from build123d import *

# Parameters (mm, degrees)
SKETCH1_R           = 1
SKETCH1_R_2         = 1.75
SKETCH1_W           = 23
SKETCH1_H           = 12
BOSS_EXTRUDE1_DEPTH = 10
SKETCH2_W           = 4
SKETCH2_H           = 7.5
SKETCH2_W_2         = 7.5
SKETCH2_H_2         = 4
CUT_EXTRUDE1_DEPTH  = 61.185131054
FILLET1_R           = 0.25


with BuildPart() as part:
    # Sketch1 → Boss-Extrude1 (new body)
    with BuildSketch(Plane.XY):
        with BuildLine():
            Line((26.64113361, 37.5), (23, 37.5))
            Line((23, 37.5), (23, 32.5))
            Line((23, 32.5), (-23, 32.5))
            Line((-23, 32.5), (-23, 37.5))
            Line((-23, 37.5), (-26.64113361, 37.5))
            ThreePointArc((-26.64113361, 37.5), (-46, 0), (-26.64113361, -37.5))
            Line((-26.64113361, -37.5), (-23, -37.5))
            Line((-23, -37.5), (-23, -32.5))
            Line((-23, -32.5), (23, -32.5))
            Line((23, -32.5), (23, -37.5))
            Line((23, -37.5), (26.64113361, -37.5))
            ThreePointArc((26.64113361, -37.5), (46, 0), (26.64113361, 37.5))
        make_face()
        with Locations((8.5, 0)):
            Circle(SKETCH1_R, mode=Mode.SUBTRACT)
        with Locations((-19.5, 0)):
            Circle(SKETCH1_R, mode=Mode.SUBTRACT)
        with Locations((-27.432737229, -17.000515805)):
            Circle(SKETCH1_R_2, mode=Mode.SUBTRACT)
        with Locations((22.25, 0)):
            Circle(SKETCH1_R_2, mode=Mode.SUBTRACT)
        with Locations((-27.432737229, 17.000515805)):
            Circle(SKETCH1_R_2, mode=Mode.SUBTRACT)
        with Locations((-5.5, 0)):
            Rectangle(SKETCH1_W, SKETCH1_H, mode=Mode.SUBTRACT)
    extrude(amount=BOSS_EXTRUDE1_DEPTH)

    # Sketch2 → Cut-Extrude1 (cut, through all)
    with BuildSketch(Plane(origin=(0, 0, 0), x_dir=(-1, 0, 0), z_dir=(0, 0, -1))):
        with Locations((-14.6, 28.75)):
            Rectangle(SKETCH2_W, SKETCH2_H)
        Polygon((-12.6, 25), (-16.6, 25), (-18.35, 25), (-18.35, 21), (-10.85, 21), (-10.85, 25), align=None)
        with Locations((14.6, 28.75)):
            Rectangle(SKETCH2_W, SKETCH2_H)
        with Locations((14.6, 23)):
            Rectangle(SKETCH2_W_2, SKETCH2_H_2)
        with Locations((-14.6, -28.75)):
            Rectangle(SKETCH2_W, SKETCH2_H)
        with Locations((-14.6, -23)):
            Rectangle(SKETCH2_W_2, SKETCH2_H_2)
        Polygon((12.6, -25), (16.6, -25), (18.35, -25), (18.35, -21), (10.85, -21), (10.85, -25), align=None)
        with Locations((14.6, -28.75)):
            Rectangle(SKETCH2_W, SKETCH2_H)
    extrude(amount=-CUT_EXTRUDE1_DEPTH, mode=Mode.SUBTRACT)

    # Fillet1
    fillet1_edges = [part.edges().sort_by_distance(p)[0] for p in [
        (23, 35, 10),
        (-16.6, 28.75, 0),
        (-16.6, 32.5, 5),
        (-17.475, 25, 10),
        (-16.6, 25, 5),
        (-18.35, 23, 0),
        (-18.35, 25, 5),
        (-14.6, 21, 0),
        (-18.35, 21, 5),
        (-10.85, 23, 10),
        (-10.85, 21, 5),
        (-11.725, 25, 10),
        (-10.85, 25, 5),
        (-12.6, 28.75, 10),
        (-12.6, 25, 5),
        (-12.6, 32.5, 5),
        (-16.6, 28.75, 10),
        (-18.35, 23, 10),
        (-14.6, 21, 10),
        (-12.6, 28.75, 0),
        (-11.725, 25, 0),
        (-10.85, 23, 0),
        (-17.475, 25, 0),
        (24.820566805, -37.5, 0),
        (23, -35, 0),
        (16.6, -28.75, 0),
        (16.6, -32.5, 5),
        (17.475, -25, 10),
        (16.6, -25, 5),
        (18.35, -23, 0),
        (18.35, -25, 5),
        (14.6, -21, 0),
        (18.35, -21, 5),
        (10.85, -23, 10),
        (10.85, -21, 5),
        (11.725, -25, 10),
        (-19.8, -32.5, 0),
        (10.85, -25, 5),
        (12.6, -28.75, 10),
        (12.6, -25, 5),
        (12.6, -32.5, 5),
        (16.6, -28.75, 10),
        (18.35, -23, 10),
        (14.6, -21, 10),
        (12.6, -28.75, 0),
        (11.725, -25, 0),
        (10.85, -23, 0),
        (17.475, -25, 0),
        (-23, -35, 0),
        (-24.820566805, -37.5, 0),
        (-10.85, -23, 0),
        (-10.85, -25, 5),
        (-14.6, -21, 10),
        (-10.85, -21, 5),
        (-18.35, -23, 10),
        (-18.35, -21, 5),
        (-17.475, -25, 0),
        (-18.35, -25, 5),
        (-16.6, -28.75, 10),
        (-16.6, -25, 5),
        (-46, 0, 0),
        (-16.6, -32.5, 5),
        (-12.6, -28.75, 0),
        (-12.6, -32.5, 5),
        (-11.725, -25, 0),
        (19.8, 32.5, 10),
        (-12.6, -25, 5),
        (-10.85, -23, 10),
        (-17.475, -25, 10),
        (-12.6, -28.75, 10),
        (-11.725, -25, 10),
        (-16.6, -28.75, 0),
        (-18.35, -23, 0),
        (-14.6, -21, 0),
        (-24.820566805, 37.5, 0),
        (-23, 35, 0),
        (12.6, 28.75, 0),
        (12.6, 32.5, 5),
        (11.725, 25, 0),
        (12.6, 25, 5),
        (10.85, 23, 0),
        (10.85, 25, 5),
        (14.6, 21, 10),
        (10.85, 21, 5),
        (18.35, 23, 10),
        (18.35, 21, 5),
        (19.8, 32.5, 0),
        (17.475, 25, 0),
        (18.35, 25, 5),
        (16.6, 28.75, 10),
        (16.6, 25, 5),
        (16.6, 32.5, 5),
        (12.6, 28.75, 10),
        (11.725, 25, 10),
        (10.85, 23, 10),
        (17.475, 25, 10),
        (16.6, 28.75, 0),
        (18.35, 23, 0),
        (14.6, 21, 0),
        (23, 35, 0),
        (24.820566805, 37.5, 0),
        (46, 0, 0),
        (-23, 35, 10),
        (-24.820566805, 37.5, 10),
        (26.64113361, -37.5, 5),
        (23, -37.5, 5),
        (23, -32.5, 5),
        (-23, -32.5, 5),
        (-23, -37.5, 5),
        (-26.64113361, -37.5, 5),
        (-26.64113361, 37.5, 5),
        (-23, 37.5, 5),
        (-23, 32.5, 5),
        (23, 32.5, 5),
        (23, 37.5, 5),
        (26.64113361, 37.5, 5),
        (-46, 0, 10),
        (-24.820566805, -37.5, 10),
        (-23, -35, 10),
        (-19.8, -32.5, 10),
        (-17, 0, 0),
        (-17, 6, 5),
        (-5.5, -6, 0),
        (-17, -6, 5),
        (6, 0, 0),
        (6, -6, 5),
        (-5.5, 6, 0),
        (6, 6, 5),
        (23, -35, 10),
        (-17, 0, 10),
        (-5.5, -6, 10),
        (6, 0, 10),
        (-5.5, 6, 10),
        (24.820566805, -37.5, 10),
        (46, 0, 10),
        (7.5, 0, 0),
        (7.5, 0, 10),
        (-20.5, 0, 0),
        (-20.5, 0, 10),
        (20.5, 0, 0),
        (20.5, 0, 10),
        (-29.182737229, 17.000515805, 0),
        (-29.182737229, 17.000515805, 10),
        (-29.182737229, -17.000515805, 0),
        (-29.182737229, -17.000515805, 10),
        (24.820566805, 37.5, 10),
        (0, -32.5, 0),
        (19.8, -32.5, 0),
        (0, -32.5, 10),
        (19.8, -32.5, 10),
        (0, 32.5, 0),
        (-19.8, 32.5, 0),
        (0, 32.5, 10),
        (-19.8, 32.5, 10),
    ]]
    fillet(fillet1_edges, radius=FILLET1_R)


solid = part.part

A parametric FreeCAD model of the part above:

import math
import FreeCAD as App
import Part
import Sketcher

V = App.Vector
Q = App.Units.Quantity

doc = App.newDocument("Part")
params = doc.addObject("Spreadsheet::Sheet", "Params")
for row, (alias, value) in enumerate([
    ("sketch1_diameter", "2 mm"),
    ("sketch1_radius", "46 mm"),
    ("sketch1_diameter2", "3.5 mm"),
    ("sketch1_width", "46 mm"),
    ("sketch1_width2", "23 mm"),
    ("pad1_length", "10 mm"),
    ("sketch2_width", "4 mm"),
    ("sketch2_width2", "7.5 mm"),
    ("fillet_radius", "0.25 mm"),
], start=1):
    params.set(f"A{row}", alias)
    params.set(f"B{row}", "=" + value)
    params.setAlias(f"B{row}", alias)

body = doc.addObject("PartDesign::Body", "Body")

# Sketch on XY plane
sketch1 = body.newObject("Sketcher::SketchObject", "Sketch")
sketch1.AttachmentSupport = (doc.getObject("XY_Plane"), [""])
sketch1.MapMode = "FlatFace"
sketch1.addGeometry(Part.LineSegment(V(26.6, 37.5, 0), V(23, 37.5, 0)), False)
sketch1.addGeometry(Part.LineSegment(V(23, 37.5, 0), V(23, 32.5, 0)), False)
sketch1.addGeometry(Part.LineSegment(V(23, 32.5, 0), V(-23, 32.5, 0)), False)
sketch1.addGeometry(Part.LineSegment(V(-23, 32.5, 0), V(-23, 37.5, 0)), False)
sketch1.addGeometry(Part.LineSegment(V(-23, 37.5, 0), V(-26.6, 37.5, 0)), False)
sketch1.addGeometry(Part.ArcOfCircle(Part.Circle(V(0, 0, 0), V(0, 0, 1), 46), math.radians(125), math.radians(235)), False)
sketch1.addGeometry(Part.LineSegment(V(-26.6, -37.5, 0), V(-23, -37.5, 0)), False)
sketch1.addGeometry(Part.LineSegment(V(-23, -37.5, 0), V(-23, -32.5, 0)), False)
sketch1.addGeometry(Part.LineSegment(V(-23, -32.5, 0), V(23, -32.5, 0)), False)
sketch1.addGeometry(Part.LineSegment(V(23, -32.5, 0), V(23, -37.5, 0)), False)
sketch1.addGeometry(Part.LineSegment(V(23, -37.5, 0), V(26.6, -37.5, 0)), False)
sketch1.addGeometry(Part.ArcOfCircle(Part.Circle(V(0, 0, 0), V(0, 0, 1), 46), math.radians(-55), math.radians(55)), False)
sketch1.addGeometry(Part.Circle(V(-27.4, -17, 0), V(0, 0, 1), 1.8), False)
sketch1.addGeometry(Part.Circle(V(-19.5, 0, 0), V(0, 0, 1), 1), False)
sketch1.addGeometry(Part.LineSegment(V(6, -6, 0), V(-17, -6, 0)), False)
sketch1.addGeometry(Part.LineSegment(V(-17, -6, 0), V(-17, 6, 0)), False)
sketch1.addGeometry(Part.LineSegment(V(-17, 6, 0), V(6, 6, 0)), False)
sketch1.addGeometry(Part.LineSegment(V(6, 6, 0), V(6, -6, 0)), False)
sketch1.addGeometry(Part.Circle(V(-27.4, 17, 0), V(0, 0, 1), 1.8), False)
sketch1.addGeometry(Part.Circle(V(8.5, 0, 0), V(0, 0, 1), 1), False)
sketch1.addGeometry(Part.Circle(V(22.2, 0, 0), V(0, 0, 1), 1.8), False)
sketch1.addConstraint(Sketcher.Constraint("Coincident", 0, 2, 1, 1))
sketch1.addConstraint(Sketcher.Constraint("Coincident", 1, 2, 2, 1))
sketch1.addConstraint(Sketcher.Constraint("Coincident", 2, 2, 3, 1))
sketch1.addConstraint(Sketcher.Constraint("Coincident", 3, 2, 4, 1))
sketch1.addConstraint(Sketcher.Constraint("Coincident", 4, 2, 5, 1))
sketch1.addConstraint(Sketcher.Constraint("Coincident", 5, 2, 6, 1))
sketch1.addConstraint(Sketcher.Constraint("Coincident", 6, 2, 7, 1))
sketch1.addConstraint(Sketcher.Constraint("Coincident", 7, 2, 8, 1))
sketch1.addConstraint(Sketcher.Constraint("Coincident", 8, 2, 9, 1))
sketch1.addConstraint(Sketcher.Constraint("Coincident", 9, 2, 10, 1))
sketch1.addConstraint(Sketcher.Constraint("Coincident", 10, 2, 11, 1))
sketch1.addConstraint(Sketcher.Constraint("Coincident", 11, 2, 0, 1))
sketch1.addConstraint(Sketcher.Constraint("Coincident", 14, 2, 15, 1))
sketch1.addConstraint(Sketcher.Constraint("Coincident", 15, 2, 16, 1))
sketch1.addConstraint(Sketcher.Constraint("Coincident", 16, 2, 17, 1))
sketch1.addConstraint(Sketcher.Constraint("Coincident", 17, 2, 14, 1))
sketch1.addConstraint(Sketcher.Constraint("Horizontal", 0))
sketch1.addConstraint(Sketcher.Constraint("Vertical", 1))
sketch1.addConstraint(Sketcher.Constraint("Horizontal", 2))
sketch1.addConstraint(Sketcher.Constraint("Vertical", 3))
sketch1.addConstraint(Sketcher.Constraint("Horizontal", 4))
sketch1.addConstraint(Sketcher.Constraint("Horizontal", 6))
sketch1.addConstraint(Sketcher.Constraint("Vertical", 7))
sketch1.addConstraint(Sketcher.Constraint("Horizontal", 8))
sketch1.addConstraint(Sketcher.Constraint("Vertical", 9))
sketch1.addConstraint(Sketcher.Constraint("Horizontal", 10))
sketch1.addConstraint(Sketcher.Constraint("Horizontal", 14))
sketch1.addConstraint(Sketcher.Constraint("Vertical", 15))
sketch1.addConstraint(Sketcher.Constraint("Horizontal", 16))
sketch1.addConstraint(Sketcher.Constraint("Vertical", 17))
sketch1.addConstraint(Sketcher.Constraint("Coincident", 5, 3, -1, 1))
sketch1.addConstraint(Sketcher.Constraint("Coincident", 11, 3, -1, 1))
sketch1.addConstraint(Sketcher.Constraint("Equal", 5, 11))
sketch1.addConstraint(Sketcher.Constraint("Equal", 12, 18))
sketch1.addConstraint(Sketcher.Constraint("Equal", 13, 19))
sketch1.addConstraint(Sketcher.Constraint("Equal", 18, 20))
sketch1.addConstraint(Sketcher.Constraint("Symmetric", 0, 2, 6, 2, -1, 1))
sketch1.addConstraint(Sketcher.Constraint("Symmetric", 2, 2, 8, 2, -1, 1))
sketch1.addConstraint(Sketcher.Constraint("Symmetric", 0, 2, 3, 2, -2))
sketch1.addConstraint(Sketcher.Constraint("Symmetric", 12, 3, 18, 3, -1))
sketch1.addConstraint(Sketcher.Constraint("PointOnObject", 13, 3, -1))
sketch1.addConstraint(Sketcher.Constraint("PointOnObject", 19, 3, -1))
sketch1.addConstraint(Sketcher.Constraint("PointOnObject", 20, 3, -1))
sketch1.addConstraint(Sketcher.Constraint("Horizontal", 6, 2, 9, 2))
sketch1.addConstraint(Sketcher.Constraint("Diameter", 13, Q("2 mm")))
sketch1.addConstraint(Sketcher.Constraint("Radius", 5, Q("46 mm")))
sketch1.addConstraint(Sketcher.Constraint("Diameter", 12, Q("3.5 mm")))
sketch1.addConstraint(Sketcher.Constraint("DistanceX", 2, 2, 2, 1, Q("46 mm")))
sketch1.addConstraint(Sketcher.Constraint("DistanceX", 14, 2, 14, 1, Q("23 mm")))
sketch1.addConstraint(Sketcher.Constraint("DistanceY", 1, 2, 1, 1, Q("5 mm")))
sketch1.addConstraint(Sketcher.Constraint("DistanceY", 15, 1, 15, 2, Q("12 mm")))
sketch1.addConstraint(Sketcher.Constraint("DistanceX", 14, 2, -1, 1, Q("17 mm")))
sketch1.addConstraint(Sketcher.Constraint("DistanceY", 14, 2, -1, 1, Q("6 mm")))
sketch1.addConstraint(Sketcher.Constraint("DistanceX", 13, 3, 19, 3, Q("28 mm")))
sketch1.addConstraint(Sketcher.Constraint("DistanceX", 13, 3, -1, 1, Q("19.5 mm")))
sketch1.addConstraint(Sketcher.Constraint("DistanceY", -1, 1, 0, 2, Q("37.5 mm")))
sketch1.addConstraint(Sketcher.Constraint("DistanceX", -1, 1, 20, 3, Q("22.25 mm")))
sketch1.addConstraint(Sketcher.Constraint("DistanceY", 12, 3, 18, 3, Q("34.001032 mm")))
sketch1.addConstraint(Sketcher.Constraint("DistanceX", 12, 3, -1, 1, Q("27.432737 mm")))
sketch1.setExpression("Constraints[44]", "Params.sketch1_diameter")
sketch1.setExpression("Constraints[45]", "Params.sketch1_radius")
sketch1.setExpression("Constraints[46]", "Params.sketch1_diameter2")
sketch1.setExpression("Constraints[47]", "Params.sketch1_width")
sketch1.setExpression("Constraints[48]", "Params.sketch1_width2")
pad1 = body.newObject("PartDesign::Pad", "Pad")
pad1.Profile = sketch1
pad1.setExpression("Length", "Params.pad1_length")

# Sketch on XY plane
sketch2 = body.newObject("Sketcher::SketchObject", "Sketch001")
sketch2.AttachmentSupport = (doc.getObject("XY_Plane"), [""])
sketch2.MapMode = "FlatFace"
sketch2.addGeometry(Part.LineSegment(V(16.6, 32.5, 0), V(16.6, 25, 0)), False)
sketch2.addGeometry(Part.LineSegment(V(16.6, 25, 0), V(18.4, 25, 0)), False)
sketch2.addGeometry(Part.LineSegment(V(18.4, 25, 0), V(18.4, 21, 0)), False)
sketch2.addGeometry(Part.LineSegment(V(18.4, 21, 0), V(10.8, 21, 0)), False)
sketch2.addGeometry(Part.LineSegment(V(10.8, 21, 0), V(10.8, 25, 0)), False)
sketch2.addGeometry(Part.LineSegment(V(10.8, 25, 0), V(12.6, 25, 0)), False)
sketch2.addGeometry(Part.LineSegment(V(12.6, 25, 0), V(12.6, 32.5, 0)), False)
sketch2.addGeometry(Part.LineSegment(V(12.6, 32.5, 0), V(16.6, 32.5, 0)), False)
sketch2.addGeometry(Part.LineSegment(V(-12.6, 32.5, 0), V(-12.6, 25, 0)), False)
sketch2.addGeometry(Part.LineSegment(V(-12.6, 25, 0), V(-10.8, 25, 0)), False)
sketch2.addGeometry(Part.LineSegment(V(-10.8, 25, 0), V(-10.8, 21, 0)), False)
sketch2.addGeometry(Part.LineSegment(V(-10.8, 21, 0), V(-18.4, 21, 0)), False)
sketch2.addGeometry(Part.LineSegment(V(-18.4, 21, 0), V(-18.4, 25, 0)), False)
sketch2.addGeometry(Part.LineSegment(V(-18.4, 25, 0), V(-16.6, 25, 0)), False)
sketch2.addGeometry(Part.LineSegment(V(-16.6, 25, 0), V(-16.6, 32.5, 0)), False)
sketch2.addGeometry(Part.LineSegment(V(-16.6, 32.5, 0), V(-12.6, 32.5, 0)), False)
sketch2.addGeometry(Part.LineSegment(V(16.6, -25, 0), V(16.6, -32.5, 0)), False)
sketch2.addGeometry(Part.LineSegment(V(16.6, -32.5, 0), V(12.6, -32.5, 0)), False)
sketch2.addGeometry(Part.LineSegment(V(12.6, -32.5, 0), V(12.6, -25, 0)), False)
sketch2.addGeometry(Part.LineSegment(V(12.6, -25, 0), V(10.8, -25, 0)), False)
sketch2.addGeometry(Part.LineSegment(V(10.8, -25, 0), V(10.8, -21, 0)), False)
sketch2.addGeometry(Part.LineSegment(V(10.8, -21, 0), V(18.4, -21, 0)), False)
sketch2.addGeometry(Part.LineSegment(V(18.4, -21, 0), V(18.4, -25, 0)), False)
sketch2.addGeometry(Part.LineSegment(V(18.4, -25, 0), V(16.6, -25, 0)), False)
sketch2.addGeometry(Part.LineSegment(V(-18.4, -25, 0), V(-18.4, -21, 0)), False)
sketch2.addGeometry(Part.LineSegment(V(-18.4, -21, 0), V(-10.8, -21, 0)), False)
sketch2.addGeometry(Part.LineSegment(V(-10.8, -21, 0), V(-10.8, -25, 0)), False)
sketch2.addGeometry(Part.LineSegment(V(-10.8, -25, 0), V(-12.6, -25, 0)), False)
sketch2.addGeometry(Part.LineSegment(V(-12.6, -25, 0), V(-12.6, -32.5, 0)), False)
sketch2.addGeometry(Part.LineSegment(V(-12.6, -32.5, 0), V(-16.6, -32.5, 0)), False)
sketch2.addGeometry(Part.LineSegment(V(-16.6, -32.5, 0), V(-16.6, -25, 0)), False)
sketch2.addGeometry(Part.LineSegment(V(-16.6, -25, 0), V(-18.4, -25, 0)), False)
sketch2.addConstraint(Sketcher.Constraint("Coincident", 0, 2, 1, 1))
sketch2.addConstraint(Sketcher.Constraint("Coincident", 1, 2, 2, 1))
sketch2.addConstraint(Sketcher.Constraint("Coincident", 2, 2, 3, 1))
sketch2.addConstraint(Sketcher.Constraint("Coincident", 3, 2, 4, 1))
sketch2.addConstraint(Sketcher.Constraint("Coincident", 4, 2, 5, 1))
sketch2.addConstraint(Sketcher.Constraint("Coincident", 5, 2, 6, 1))
sketch2.addConstraint(Sketcher.Constraint("Coincident", 6, 2, 7, 1))
sketch2.addConstraint(Sketcher.Constraint("Coincident", 7, 2, 0, 1))
sketch2.addConstraint(Sketcher.Constraint("Coincident", 8, 2, 9, 1))
sketch2.addConstraint(Sketcher.Constraint("Coincident", 9, 2, 10, 1))
sketch2.addConstraint(Sketcher.Constraint("Coincident", 10, 2, 11, 1))
sketch2.addConstraint(Sketcher.Constraint("Coincident", 11, 2, 12, 1))
sketch2.addConstraint(Sketcher.Constraint("Coincident", 12, 2, 13, 1))
sketch2.addConstraint(Sketcher.Constraint("Coincident", 13, 2, 14, 1))
sketch2.addConstraint(Sketcher.Constraint("Coincident", 14, 2, 15, 1))
sketch2.addConstraint(Sketcher.Constraint("Coincident", 15, 2, 8, 1))
sketch2.addConstraint(Sketcher.Constraint("Coincident", 16, 2, 17, 1))
sketch2.addConstraint(Sketcher.Constraint("Coincident", 17, 2, 18, 1))
sketch2.addConstraint(Sketcher.Constraint("Coincident", 18, 2, 19, 1))
sketch2.addConstraint(Sketcher.Constraint("Coincident", 19, 2, 20, 1))
sketch2.addConstraint(Sketcher.Constraint("Coincident", 20, 2, 21, 1))
sketch2.addConstraint(Sketcher.Constraint("Coincident", 21, 2, 22, 1))
sketch2.addConstraint(Sketcher.Constraint("Coincident", 22, 2, 23, 1))
sketch2.addConstraint(Sketcher.Constraint("Coincident", 23, 2, 16, 1))
sketch2.addConstraint(Sketcher.Constraint("Coincident", 24, 2, 25, 1))
sketch2.addConstraint(Sketcher.Constraint("Coincident", 25, 2, 26, 1))
sketch2.addConstraint(Sketcher.Constraint("Coincident", 26, 2, 27, 1))
sketch2.addConstraint(Sketcher.Constraint("Coincident", 27, 2, 28, 1))
sketch2.addConstraint(Sketcher.Constraint("Coincident", 28, 2, 29, 1))
sketch2.addConstraint(Sketcher.Constraint("Coincident", 29, 2, 30, 1))
sketch2.addConstraint(Sketcher.Constraint("Coincident", 30, 2, 31, 1))
sketch2.addConstraint(Sketcher.Constraint("Coincident", 31, 2, 24, 1))
sketch2.addConstraint(Sketcher.Constraint("Vertical", 0))
sketch2.addConstraint(Sketcher.Constraint("Horizontal", 1))
sketch2.addConstraint(Sketcher.Constraint("Vertical", 2))
sketch2.addConstraint(Sketcher.Constraint("Horizontal", 3))
sketch2.addConstraint(Sketcher.Constraint("Vertical", 4))
sketch2.addConstraint(Sketcher.Constraint("Horizontal", 5))
sketch2.addConstraint(Sketcher.Constraint("Vertical", 6))
sketch2.addConstraint(Sketcher.Constraint("Horizontal", 7))
sketch2.addConstraint(Sketcher.Constraint("Vertical", 8))
sketch2.addConstraint(Sketcher.Constraint("Horizontal", 9))
sketch2.addConstraint(Sketcher.Constraint("Vertical", 10))
sketch2.addConstraint(Sketcher.Constraint("Horizontal", 11))
sketch2.addConstraint(Sketcher.Constraint("Vertical", 12))
sketch2.addConstraint(Sketcher.Constraint("Horizontal", 13))
sketch2.addConstraint(Sketcher.Constraint("Vertical", 14))
sketch2.addConstraint(Sketcher.Constraint("Horizontal", 15))
sketch2.addConstraint(Sketcher.Constraint("Vertical", 16))
sketch2.addConstraint(Sketcher.Constraint("Horizontal", 17))
sketch2.addConstraint(Sketcher.Constraint("Vertical", 18))
sketch2.addConstraint(Sketcher.Constraint("Horizontal", 19))
sketch2.addConstraint(Sketcher.Constraint("Vertical", 20))
sketch2.addConstraint(Sketcher.Constraint("Horizontal", 21))
sketch2.addConstraint(Sketcher.Constraint("Vertical", 22))
sketch2.addConstraint(Sketcher.Constraint("Horizontal", 23))
sketch2.addConstraint(Sketcher.Constraint("Vertical", 24))
sketch2.addConstraint(Sketcher.Constraint("Horizontal", 25))
sketch2.addConstraint(Sketcher.Constraint("Vertical", 26))
sketch2.addConstraint(Sketcher.Constraint("Horizontal", 27))
sketch2.addConstraint(Sketcher.Constraint("Vertical", 28))
sketch2.addConstraint(Sketcher.Constraint("Horizontal", 29))
sketch2.addConstraint(Sketcher.Constraint("Vertical", 30))
sketch2.addConstraint(Sketcher.Constraint("Horizontal", 31))
sketch2.addConstraint(Sketcher.Constraint("Symmetric", 14, 2, 16, 2, -1, 1))
sketch2.addConstraint(Sketcher.Constraint("Symmetric", 8, 2, 18, 2, -1, 1))
sketch2.addConstraint(Sketcher.Constraint("Symmetric", 10, 2, 20, 2, -1, 1))
sketch2.addConstraint(Sketcher.Constraint("Symmetric", 12, 2, 22, 2, -1, 1))
sketch2.addConstraint(Sketcher.Constraint("Symmetric", 2, 2, 24, 2, -1, 1))
sketch2.addConstraint(Sketcher.Constraint("Symmetric", 4, 2, 26, 2, -1, 1))
sketch2.addConstraint(Sketcher.Constraint("Symmetric", 6, 2, 28, 2, -1, 1))
sketch2.addConstraint(Sketcher.Constraint("Symmetric", 0, 2, 30, 2, -1, 1))
sketch2.addConstraint(Sketcher.Constraint("Symmetric", 5, 2, 8, 2, -2))
sketch2.addConstraint(Sketcher.Constraint("Symmetric", 3, 2, 10, 2, -2))
sketch2.addConstraint(Sketcher.Constraint("Symmetric", 1, 2, 12, 2, -2))
sketch2.addConstraint(Sketcher.Constraint("Symmetric", 7, 2, 14, 2, -2))
sketch2.addConstraint(Sketcher.Constraint("Horizontal", 1, 2, 4, 2))
sketch2.addConstraint(Sketcher.Constraint("Equal", 1, 5))
sketch2.addConstraint(Sketcher.Constraint("Equal", 25, 0))
sketch2.addConstraint(Sketcher.Constraint("Equal", 29, 2))
sketch2.addConstraint(Sketcher.Constraint("DistanceX", 7, 1, 7, 2, Q("4 mm")))
sketch2.addConstraint(Sketcher.Constraint("DistanceX", 3, 2, 3, 1, Q("7.5 mm")))
sketch2.addConstraint(Sketcher.Constraint("DistanceY", -1, 1, 0, 2, Q("25 mm")))
sketch2.addConstraint(Sketcher.Constraint("DistanceX", -1, 1, 0, 2, Q("16.6 mm")))
sketch2.setExpression("Constraints[80]", "Params.sketch2_width")
sketch2.setExpression("Constraints[81]", "Params.sketch2_width2")
pocket1 = body.newObject("PartDesign::Pocket", "Pocket")
pocket1.Profile = sketch2
pocket1.Type = "ThroughAll"
pocket1.Reversed = True
doc.recompute()

fillet = body.newObject("PartDesign::Fillet", "Fillet")
fillet.Base = (pocket1, ["Edge1"])
fillet.UseAllEdges = True
fillet.setExpression("Radius", "Params.fillet_radius")

doc.recompute()
